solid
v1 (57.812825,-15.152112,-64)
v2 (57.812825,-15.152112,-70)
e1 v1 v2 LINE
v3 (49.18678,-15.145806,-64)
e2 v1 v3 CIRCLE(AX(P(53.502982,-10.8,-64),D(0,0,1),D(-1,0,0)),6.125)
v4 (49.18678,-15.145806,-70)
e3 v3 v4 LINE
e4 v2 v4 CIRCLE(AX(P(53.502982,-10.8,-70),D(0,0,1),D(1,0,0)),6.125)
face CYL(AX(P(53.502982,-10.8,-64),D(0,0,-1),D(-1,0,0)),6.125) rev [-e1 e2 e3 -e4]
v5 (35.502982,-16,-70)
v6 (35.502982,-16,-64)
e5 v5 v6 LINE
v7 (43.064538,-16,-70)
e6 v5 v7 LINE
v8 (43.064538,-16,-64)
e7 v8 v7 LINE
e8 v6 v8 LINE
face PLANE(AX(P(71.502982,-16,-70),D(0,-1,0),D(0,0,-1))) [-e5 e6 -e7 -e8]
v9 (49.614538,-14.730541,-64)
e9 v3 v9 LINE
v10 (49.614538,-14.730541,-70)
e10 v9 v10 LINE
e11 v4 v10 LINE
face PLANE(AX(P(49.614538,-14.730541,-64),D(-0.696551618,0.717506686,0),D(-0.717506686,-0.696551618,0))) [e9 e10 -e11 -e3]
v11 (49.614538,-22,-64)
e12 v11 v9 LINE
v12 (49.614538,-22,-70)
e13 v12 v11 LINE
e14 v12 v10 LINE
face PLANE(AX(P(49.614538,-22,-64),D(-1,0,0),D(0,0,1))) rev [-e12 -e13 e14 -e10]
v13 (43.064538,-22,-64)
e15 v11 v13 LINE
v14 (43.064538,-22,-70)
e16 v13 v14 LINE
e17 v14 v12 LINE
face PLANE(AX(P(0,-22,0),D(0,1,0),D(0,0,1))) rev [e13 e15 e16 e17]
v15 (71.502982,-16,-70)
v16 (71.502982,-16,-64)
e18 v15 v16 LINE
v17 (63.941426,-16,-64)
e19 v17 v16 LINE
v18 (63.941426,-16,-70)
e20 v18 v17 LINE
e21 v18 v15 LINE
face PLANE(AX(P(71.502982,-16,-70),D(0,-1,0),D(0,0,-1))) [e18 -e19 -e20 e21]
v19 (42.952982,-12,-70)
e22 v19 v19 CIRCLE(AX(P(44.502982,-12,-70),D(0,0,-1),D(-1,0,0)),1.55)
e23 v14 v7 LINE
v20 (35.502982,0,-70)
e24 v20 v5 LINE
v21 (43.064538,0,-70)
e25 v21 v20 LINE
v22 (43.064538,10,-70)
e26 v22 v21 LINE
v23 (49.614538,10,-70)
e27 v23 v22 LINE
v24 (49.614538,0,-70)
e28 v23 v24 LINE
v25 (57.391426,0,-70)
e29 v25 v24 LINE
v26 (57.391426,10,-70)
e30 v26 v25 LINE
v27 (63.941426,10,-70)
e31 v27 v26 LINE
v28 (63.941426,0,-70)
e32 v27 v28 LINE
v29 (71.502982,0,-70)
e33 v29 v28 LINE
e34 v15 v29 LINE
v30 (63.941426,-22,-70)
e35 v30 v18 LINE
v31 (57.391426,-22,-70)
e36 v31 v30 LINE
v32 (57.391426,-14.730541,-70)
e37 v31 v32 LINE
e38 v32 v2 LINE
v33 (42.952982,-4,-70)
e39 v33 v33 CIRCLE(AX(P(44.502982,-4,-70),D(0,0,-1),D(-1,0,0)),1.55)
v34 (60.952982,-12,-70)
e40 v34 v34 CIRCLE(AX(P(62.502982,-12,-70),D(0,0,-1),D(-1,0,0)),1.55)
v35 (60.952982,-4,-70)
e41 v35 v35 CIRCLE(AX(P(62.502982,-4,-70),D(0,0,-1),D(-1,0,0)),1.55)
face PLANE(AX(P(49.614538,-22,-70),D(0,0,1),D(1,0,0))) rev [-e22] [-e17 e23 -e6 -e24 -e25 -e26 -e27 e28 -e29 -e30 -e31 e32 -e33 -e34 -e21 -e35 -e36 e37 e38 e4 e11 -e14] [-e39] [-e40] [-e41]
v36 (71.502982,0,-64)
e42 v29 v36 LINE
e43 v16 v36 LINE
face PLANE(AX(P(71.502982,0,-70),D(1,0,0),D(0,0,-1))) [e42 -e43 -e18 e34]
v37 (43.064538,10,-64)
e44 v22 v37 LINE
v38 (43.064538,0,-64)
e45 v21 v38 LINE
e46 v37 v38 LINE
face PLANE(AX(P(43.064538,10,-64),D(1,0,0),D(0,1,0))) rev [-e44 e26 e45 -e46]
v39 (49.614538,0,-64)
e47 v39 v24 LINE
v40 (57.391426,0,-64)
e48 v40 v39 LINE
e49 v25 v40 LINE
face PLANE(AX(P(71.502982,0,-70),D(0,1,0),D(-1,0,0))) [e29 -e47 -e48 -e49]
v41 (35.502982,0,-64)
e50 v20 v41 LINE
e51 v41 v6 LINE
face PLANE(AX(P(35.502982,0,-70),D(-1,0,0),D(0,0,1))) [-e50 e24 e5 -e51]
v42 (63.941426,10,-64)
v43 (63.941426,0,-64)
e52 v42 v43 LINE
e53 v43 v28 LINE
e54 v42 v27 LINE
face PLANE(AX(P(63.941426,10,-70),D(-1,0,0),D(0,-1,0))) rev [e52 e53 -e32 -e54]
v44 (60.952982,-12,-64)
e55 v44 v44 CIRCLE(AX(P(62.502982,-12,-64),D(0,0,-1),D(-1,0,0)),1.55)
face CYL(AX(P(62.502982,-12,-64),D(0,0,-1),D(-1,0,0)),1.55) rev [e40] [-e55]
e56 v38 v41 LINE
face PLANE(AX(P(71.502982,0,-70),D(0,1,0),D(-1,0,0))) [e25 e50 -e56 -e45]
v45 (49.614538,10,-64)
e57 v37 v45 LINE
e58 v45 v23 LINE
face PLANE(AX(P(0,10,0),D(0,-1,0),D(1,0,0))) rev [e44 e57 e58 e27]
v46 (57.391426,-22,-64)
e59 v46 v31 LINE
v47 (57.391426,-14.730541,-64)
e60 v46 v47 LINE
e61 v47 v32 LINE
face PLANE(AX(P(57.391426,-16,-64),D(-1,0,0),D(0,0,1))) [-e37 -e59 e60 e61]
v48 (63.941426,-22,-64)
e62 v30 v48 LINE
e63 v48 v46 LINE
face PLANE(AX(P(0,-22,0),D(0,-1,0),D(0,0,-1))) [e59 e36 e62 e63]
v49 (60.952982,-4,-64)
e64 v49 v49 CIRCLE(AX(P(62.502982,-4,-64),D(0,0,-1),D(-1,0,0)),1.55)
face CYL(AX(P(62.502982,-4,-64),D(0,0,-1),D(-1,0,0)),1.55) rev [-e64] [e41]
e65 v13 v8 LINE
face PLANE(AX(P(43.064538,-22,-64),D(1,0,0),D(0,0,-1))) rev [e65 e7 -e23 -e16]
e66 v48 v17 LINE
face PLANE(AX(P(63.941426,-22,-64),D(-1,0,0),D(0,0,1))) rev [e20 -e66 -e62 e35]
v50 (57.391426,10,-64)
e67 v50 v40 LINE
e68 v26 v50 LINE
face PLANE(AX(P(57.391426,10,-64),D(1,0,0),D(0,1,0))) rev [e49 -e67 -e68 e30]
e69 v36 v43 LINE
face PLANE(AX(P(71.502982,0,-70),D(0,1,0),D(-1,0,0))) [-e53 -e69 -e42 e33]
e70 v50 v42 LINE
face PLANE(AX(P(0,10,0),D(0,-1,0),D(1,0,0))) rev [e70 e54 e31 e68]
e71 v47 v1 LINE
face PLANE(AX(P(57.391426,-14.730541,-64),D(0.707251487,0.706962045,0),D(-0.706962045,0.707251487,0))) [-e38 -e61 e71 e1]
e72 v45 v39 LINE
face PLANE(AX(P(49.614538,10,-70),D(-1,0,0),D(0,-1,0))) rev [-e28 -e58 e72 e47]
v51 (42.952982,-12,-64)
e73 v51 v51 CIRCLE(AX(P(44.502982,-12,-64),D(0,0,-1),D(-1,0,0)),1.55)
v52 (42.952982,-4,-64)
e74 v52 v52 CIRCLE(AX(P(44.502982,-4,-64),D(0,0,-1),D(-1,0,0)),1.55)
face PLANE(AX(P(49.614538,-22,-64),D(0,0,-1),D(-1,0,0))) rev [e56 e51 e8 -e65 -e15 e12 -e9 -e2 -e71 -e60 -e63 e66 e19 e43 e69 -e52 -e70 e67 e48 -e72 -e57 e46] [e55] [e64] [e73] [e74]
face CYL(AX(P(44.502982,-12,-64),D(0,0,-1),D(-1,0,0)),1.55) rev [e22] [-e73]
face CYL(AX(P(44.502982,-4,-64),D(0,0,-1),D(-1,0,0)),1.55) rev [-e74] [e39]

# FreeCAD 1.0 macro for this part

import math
import FreeCAD as App
import Part
import Sketcher

V = App.Vector


def add_polygon(sketch, points):
    """Adds a closed chain of lines whose ends are joined by coincident constraints."""
    first, n = sketch.GeometryCount, len(points)
    for a, b in zip(points, points[1:] + points[:1]):
        sketch.addGeometry(Part.LineSegment(App.Vector(*a, 0), App.Vector(*b, 0)), False)
    for i in range(n):
        sketch.addConstraint(Sketcher.Constraint("Coincident", first + i, 2, first + (i + 1) % n, 1))

doc = App.newDocument("Part")
body = doc.addObject("PartDesign::Body", "Body")

sketch1 = body.newObject("Sketcher::SketchObject", "Sketch")
sketch1.AttachmentSupport = (doc.getObject("XY_Plane"), [""])
sketch1.MapMode = "FlatFace"
sketch1.AttachmentOffset = App.Placement(V(0, 0, -64), App.Rotation())
add_polygon(sketch1, [(36, 0), (36, -16), (72, -16), (72, 0)])
sketch1.addConstraint(Sketcher.Constraint("Vertical", 0))
sketch1.addConstraint(Sketcher.Constraint("Horizontal", 1))
sketch1.addConstraint(Sketcher.Constraint("Vertical", 2))
sketch1.addConstraint(Sketcher.Constraint("Horizontal", 3))
sketch1.addConstraint(Sketcher.Constraint("PointOnObject", 2, 2, -1))
sketch1.addConstraint(Sketcher.Constraint("DistanceX", 1, 1, 1, 2, 36.0))
sketch1.addConstraint(Sketcher.Constraint("DistanceY", 0, 2, 0, 1, 16.0))
sketch1.addConstraint(Sketcher.Constraint("DistanceX", -1, 1, 0, 2, 35.502982))
pad1 = body.newObject("PartDesign::Pad", "Pad")
pad1.Profile = sketch1
pad1.Length = 6
pad1.Reversed = True

sketch2 = body.newObject("Sketcher::SketchObject", "Sketch001")
sketch2.AttachmentSupport = (doc.getObject("XY_Plane"), [""])
sketch2.MapMode = "FlatFace"
sketch2.AttachmentOffset = App.Placement(V(0, 0, -70), App.Rotation())
sketch2.addGeometry(Part.LineSegment(V(49.61, -14.73, 0), V(49.61, -16, 0)), False)
sketch2.addGeometry(Part.LineSegment(V(49.61, -16, 0), V(57.39, -16, 0)), False)
sketch2.addGeometry(Part.LineSegment(V(57.39, -16, 0), V(57.39, -14.73, 0)), False)
sketch2.addGeometry(Part.LineSegment(V(57.39, -14.73, 0), V(57.81, -15.15, 0)), False)
sketch2.addGeometry(Part.ArcOfCircle(Part.Circle(V(53.5, -10.8, 0), V(0, 0, 1), 6.12), math.radians(-45.28), math.radians(-43.83)), False)
sketch2.addGeometry(Part.ArcOfCircle(Part.Circle(V(53.5, -10.8, 0), V(0, 0, 1), 6.12), math.radians(-44), math.radians(224)), False)
sketch2.addGeometry(Part.ArcOfCircle(Part.Circle(V(53.5, -10.8, 0), V(0, 0, 1), 6.12), math.radians(-136.17), math.radians(-134.8)), False)
sketch2.addGeometry(Part.LineSegment(V(49.19, -15.15, 0), V(49.61, -14.73, 0)), False)
sketch2.addConstraint(Sketcher.Constraint("Coincident", 0, 2, 1, 1))
sketch2.addConstraint(Sketcher.Constraint("Coincident", 1, 2, 2, 1))
sketch2.addConstraint(Sketcher.Constraint("Coincident", 2, 2, 3, 1))
sketch2.addConstraint(Sketcher.Constraint("Coincident", 3, 2, 4, 1))
sketch2.addConstraint(Sketcher.Constraint("Tangent", 4, 2, 5, 1))
sketch2.addConstraint(Sketcher.Constraint("Tangent", 5, 2, 6, 1))
sketch2.addConstraint(Sketcher.Constraint("Coincident", 6, 2, 7, 1))
sketch2.addConstraint(Sketcher.Constraint("Coincident", 7, 2, 0, 1))
sketch2.addConstraint(Sketcher.Constraint("Vertical", 0))
sketch2.addConstraint(Sketcher.Constraint("Horizontal", 1))
sketch2.addConstraint(Sketcher.Constraint("Vertical", 2))
sketch2.addConstraint(Sketcher.Constraint("Coincident", 6, 3, 4, 3))
sketch2.addConstraint(Sketcher.Constraint("Horizontal", 4, 2, 5, 2))
sketch2.addConstraint(Sketcher.Constraint("Horizontal", 2, 2, 7, 2))
sketch2.addConstraint(Sketcher.Constraint("DistanceY", 0, 2, -1, 1, 16.0))
sketch2.addConstraint(Sketcher.Constraint("Radius", 4, 6.124999))
sketch2.addConstraint(Sketcher.Constraint("DistanceY", 4, 3, -1, 1, 10.800001))
sketch2.addConstraint(Sketcher.Constraint("DistanceX", 1, 1, 1, 2, 7.776889))
sketch2.addConstraint(Sketcher.Constraint("DistanceY", 0, 2, 0, 1, 1.269459))
sketch2.addConstraint(Sketcher.Constraint("DistanceX", 2, 2, 3, 2, 0.421398))
sketch2.addConstraint(Sketcher.Constraint("DistanceY", 6, 2, 6, 3, 4.345801))
sketch2.addConstraint(Sketcher.Constraint("Distance", 3, 0.596069))
sketch2.addConstraint(Sketcher.Constraint("DistanceX", -1, 1, 4, 2, 57.92177))
sketch2.addConstraint(Sketcher.Constraint("DistanceX", -1, 1, 6, 2, 49.18678))
pocket1 = body.newObject("PartDesign::Pocket", "Pocket")
pocket1.Profile = sketch2
pocket1.Length = 6
pocket1.Reversed = True

sketch3 = body.newObject("Sketcher::SketchObject", "Sketch002")
sketch3.AttachmentSupport = (doc.getObject("XY_Plane"), [""])
sketch3.MapMode = "FlatFace"
sketch3.AttachmentOffset = App.Placement(V(0, 0, -70), App.Rotation())
sketch3.addGeometry(Part.Circle(V(62.5, -4, 0), V(0, 0, 1), 1.6), False)
sketch3.addGeometry(Part.Circle(V(44.5, -4, 0), V(0, 0, 1), 1.6), False)
sketch3.addGeometry(Part.Circle(V(44.5, -12, 0), V(0, 0, 1), 1.6), False)
sketch3.addGeometry(Part.Circle(V(62.5, -12, 0), V(0, 0, 1), 1.6), False)
sketch3.addConstraint(Sketcher.Constraint("Equal", 0, 1))
sketch3.addConstraint(Sketcher.Constraint("Equal", 1, 2))
sketch3.addConstraint(Sketcher.Constraint("Equal", 2, 3))
sketch3.addConstraint(Sketcher.Constraint("Horizontal", 0, 3, 1, 3))
sketch3.addConstraint(Sketcher.Constraint("Horizontal", 2, 3, 3, 3))
sketch3.addConstraint(Sketcher.Constraint("Vertical", 1, 3, 2, 3))
sketch3.addConstraint(Sketcher.Constraint("Vertical", 0, 3, 3, 3))
sketch3.addConstraint(Sketcher.Constraint("Diameter", 0, 3.1))
sketch3.addConstraint(Sketcher.Constraint("DistanceY", 0, 3, -1, 1, 4.0))
sketch3.addConstraint(Sketcher.Constraint("DistanceY", 2, 3, -1, 1, 12.0))
sketch3.addConstraint(Sketcher.Constraint("DistanceX", 1, 3, 0, 3, 18.0))
sketch3.addConstraint(Sketcher.Constraint("DistanceX", -1, 1, 0, 3, 62.502982))
pocket2 = body.newObject("PartDesign::Pocket", "Pocket001")
pocket2.Profile = sketch3
pocket2.Type = "ThroughAll"
pocket2.Reversed = True
body2 = doc.addObject("PartDesign::Body", "Body001")

sketch4 = body2.newObject("Sketcher::SketchObject", "Sketch003")
sketch4.AttachmentSupport = (doc.getObject("XZ_Plane001"), [""])
sketch4.MapMode = "FlatFace"
sketch4.AttachmentOffset = App.Placement(V(0, 0, 16), App.Rotation())
add_polygon(sketch4, [(57, -64), (57, -70), (64, -70), (64, -64)])
sketch4.addConstraint(Sketcher.Constraint("Vertical", 0))
sketch4.addConstraint(Sketcher.Constraint("Horizontal", 1))
sketch4.addConstraint(Sketcher.Constraint("Vertical", 2))
sketch4.addConstraint(Sketcher.Constraint("Horizontal", 3))
sketch4.addConstraint(Sketcher.Constraint("DistanceY", 0, 2, 0, 1, 6.0))
sketch4.addConstraint(Sketcher.Constraint("DistanceY", 0, 2, -1, 1, 70.0))
sketch4.addConstraint(Sketcher.Constraint("DistanceX", 1, 1, 1, 2, 6.55))
sketch4.addConstraint(Sketcher.Constraint("DistanceX", -1, 1, 0, 2, 57.391426))
pad2 = body2.newObject("PartDesign::Pad", "Pad001")
pad2.Profile = sketch4
pad2.Length = 6
body3 = doc.addObject("PartDesign::Body", "Body002")

sketch5 = body3.newObject("Sketcher::SketchObject", "Sketch004")
sketch5.AttachmentSupport = (doc.getObject("XZ_Plane002"), [""])
sketch5.MapMode = "FlatFace"
sketch5.AttachmentOffset = App.Placement(V(0, 0, 16), App.Rotation())
add_polygon(sketch5, [(43, -64), (43, -70), (50, -70), (50, -64)])
sketch5.addConstraint(Sketcher.Constraint("Vertical", 0))
sketch5.addConstraint(Sketcher.Constraint("Horizontal", 1))
sketch5.addConstraint(Sketcher.Constraint("Vertical", 2))
sketch5.addConstraint(Sketcher.Constraint("Horizontal", 3))
sketch5.addConstraint(Sketcher.Constraint("DistanceY", 0, 2, 0, 1, 6.0))
sketch5.addConstraint(Sketcher.Constraint("DistanceY", 0, 2, -1, 1, 70.0))
sketch5.addConstraint(Sketcher.Constraint("DistanceX", 1, 1, 1, 2, 6.55))
sketch5.addConstraint(Sketcher.Constraint("DistanceX", -1, 1, 0, 2, 43.064538))
pad3 = body3.newObject("PartDesign::Pad", "Pad002")
pad3.Profile = sketch5
pad3.Length = 6
doc.recompute()

boolean = body.newObject("PartDesign::Boolean", "Boolean")
boolean.Type = "Fuse"
boolean.addObjects([body2])

sketch6 = body.newObject("Sketcher::SketchObject", "Sketch005")
sketch6.AttachmentSupport = (doc.getObject("XZ_Plane"), [""])
sketch6.MapMode = "FlatFace"
add_polygon(sketch6, [(57, -70), (57, -64), (64, -64), (64, -70)])
add_polygon(sketch6, [(43, -70), (43, -64), (50, -64), (50, -70)])
sketch6.addConstraint(Sketcher.Constraint("Vertical", 0))
sketch6.addConstraint(Sketcher.Constraint("Horizontal", 1))
sketch6.addConstraint(Sketcher.Constraint("Vertical", 2))
sketch6.addConstraint(Sketcher.Constraint("Horizontal", 3))
sketch6.addConstraint(Sketcher.Constraint("Vertical", 4))
sketch6.addConstraint(Sketcher.Constraint("Horizontal", 5))
sketch6.addConstraint(Sketcher.Constraint("Vertical", 6))
sketch6.addConstraint(Sketcher.Constraint("Horizontal", 7))
sketch6.addConstraint(Sketcher.Constraint("Horizontal", 1, 2, 4, 2))
sketch6.addConstraint(Sketcher.Constraint("Horizontal", 3, 2, 6, 2))
sketch6.addConstraint(Sketcher.Constraint("Equal", 3, 5))
sketch6.addConstraint(Sketcher.Constraint("DistanceY", 0, 1, 0, 2, 6.0))
sketch6.addConstraint(Sketcher.Constraint("DistanceY", 0, 2, -1, 1, 64.0))
sketch6.addConstraint(Sketcher.Constraint("DistanceX", 1, 1, 1, 2, 6.55))
sketch6.addConstraint(Sketcher.Constraint("DistanceX", 4, 2, 0, 2, 14.326889))
sketch6.addConstraint(Sketcher.Constraint("DistanceX", -1, 1, 0, 2, 57.391426))
pad4 = body.newObject("PartDesign::Pad", "Pad003")
pad4.Profile = sketch6
pad4.Length = 10
pad4.Reversed = True
doc.recompute()

boolean2 = body3.newObject("PartDesign::Boolean", "Boolean001")
boolean2.Type = "Fuse"
boolean2.addObjects([body])

doc.recompute()
